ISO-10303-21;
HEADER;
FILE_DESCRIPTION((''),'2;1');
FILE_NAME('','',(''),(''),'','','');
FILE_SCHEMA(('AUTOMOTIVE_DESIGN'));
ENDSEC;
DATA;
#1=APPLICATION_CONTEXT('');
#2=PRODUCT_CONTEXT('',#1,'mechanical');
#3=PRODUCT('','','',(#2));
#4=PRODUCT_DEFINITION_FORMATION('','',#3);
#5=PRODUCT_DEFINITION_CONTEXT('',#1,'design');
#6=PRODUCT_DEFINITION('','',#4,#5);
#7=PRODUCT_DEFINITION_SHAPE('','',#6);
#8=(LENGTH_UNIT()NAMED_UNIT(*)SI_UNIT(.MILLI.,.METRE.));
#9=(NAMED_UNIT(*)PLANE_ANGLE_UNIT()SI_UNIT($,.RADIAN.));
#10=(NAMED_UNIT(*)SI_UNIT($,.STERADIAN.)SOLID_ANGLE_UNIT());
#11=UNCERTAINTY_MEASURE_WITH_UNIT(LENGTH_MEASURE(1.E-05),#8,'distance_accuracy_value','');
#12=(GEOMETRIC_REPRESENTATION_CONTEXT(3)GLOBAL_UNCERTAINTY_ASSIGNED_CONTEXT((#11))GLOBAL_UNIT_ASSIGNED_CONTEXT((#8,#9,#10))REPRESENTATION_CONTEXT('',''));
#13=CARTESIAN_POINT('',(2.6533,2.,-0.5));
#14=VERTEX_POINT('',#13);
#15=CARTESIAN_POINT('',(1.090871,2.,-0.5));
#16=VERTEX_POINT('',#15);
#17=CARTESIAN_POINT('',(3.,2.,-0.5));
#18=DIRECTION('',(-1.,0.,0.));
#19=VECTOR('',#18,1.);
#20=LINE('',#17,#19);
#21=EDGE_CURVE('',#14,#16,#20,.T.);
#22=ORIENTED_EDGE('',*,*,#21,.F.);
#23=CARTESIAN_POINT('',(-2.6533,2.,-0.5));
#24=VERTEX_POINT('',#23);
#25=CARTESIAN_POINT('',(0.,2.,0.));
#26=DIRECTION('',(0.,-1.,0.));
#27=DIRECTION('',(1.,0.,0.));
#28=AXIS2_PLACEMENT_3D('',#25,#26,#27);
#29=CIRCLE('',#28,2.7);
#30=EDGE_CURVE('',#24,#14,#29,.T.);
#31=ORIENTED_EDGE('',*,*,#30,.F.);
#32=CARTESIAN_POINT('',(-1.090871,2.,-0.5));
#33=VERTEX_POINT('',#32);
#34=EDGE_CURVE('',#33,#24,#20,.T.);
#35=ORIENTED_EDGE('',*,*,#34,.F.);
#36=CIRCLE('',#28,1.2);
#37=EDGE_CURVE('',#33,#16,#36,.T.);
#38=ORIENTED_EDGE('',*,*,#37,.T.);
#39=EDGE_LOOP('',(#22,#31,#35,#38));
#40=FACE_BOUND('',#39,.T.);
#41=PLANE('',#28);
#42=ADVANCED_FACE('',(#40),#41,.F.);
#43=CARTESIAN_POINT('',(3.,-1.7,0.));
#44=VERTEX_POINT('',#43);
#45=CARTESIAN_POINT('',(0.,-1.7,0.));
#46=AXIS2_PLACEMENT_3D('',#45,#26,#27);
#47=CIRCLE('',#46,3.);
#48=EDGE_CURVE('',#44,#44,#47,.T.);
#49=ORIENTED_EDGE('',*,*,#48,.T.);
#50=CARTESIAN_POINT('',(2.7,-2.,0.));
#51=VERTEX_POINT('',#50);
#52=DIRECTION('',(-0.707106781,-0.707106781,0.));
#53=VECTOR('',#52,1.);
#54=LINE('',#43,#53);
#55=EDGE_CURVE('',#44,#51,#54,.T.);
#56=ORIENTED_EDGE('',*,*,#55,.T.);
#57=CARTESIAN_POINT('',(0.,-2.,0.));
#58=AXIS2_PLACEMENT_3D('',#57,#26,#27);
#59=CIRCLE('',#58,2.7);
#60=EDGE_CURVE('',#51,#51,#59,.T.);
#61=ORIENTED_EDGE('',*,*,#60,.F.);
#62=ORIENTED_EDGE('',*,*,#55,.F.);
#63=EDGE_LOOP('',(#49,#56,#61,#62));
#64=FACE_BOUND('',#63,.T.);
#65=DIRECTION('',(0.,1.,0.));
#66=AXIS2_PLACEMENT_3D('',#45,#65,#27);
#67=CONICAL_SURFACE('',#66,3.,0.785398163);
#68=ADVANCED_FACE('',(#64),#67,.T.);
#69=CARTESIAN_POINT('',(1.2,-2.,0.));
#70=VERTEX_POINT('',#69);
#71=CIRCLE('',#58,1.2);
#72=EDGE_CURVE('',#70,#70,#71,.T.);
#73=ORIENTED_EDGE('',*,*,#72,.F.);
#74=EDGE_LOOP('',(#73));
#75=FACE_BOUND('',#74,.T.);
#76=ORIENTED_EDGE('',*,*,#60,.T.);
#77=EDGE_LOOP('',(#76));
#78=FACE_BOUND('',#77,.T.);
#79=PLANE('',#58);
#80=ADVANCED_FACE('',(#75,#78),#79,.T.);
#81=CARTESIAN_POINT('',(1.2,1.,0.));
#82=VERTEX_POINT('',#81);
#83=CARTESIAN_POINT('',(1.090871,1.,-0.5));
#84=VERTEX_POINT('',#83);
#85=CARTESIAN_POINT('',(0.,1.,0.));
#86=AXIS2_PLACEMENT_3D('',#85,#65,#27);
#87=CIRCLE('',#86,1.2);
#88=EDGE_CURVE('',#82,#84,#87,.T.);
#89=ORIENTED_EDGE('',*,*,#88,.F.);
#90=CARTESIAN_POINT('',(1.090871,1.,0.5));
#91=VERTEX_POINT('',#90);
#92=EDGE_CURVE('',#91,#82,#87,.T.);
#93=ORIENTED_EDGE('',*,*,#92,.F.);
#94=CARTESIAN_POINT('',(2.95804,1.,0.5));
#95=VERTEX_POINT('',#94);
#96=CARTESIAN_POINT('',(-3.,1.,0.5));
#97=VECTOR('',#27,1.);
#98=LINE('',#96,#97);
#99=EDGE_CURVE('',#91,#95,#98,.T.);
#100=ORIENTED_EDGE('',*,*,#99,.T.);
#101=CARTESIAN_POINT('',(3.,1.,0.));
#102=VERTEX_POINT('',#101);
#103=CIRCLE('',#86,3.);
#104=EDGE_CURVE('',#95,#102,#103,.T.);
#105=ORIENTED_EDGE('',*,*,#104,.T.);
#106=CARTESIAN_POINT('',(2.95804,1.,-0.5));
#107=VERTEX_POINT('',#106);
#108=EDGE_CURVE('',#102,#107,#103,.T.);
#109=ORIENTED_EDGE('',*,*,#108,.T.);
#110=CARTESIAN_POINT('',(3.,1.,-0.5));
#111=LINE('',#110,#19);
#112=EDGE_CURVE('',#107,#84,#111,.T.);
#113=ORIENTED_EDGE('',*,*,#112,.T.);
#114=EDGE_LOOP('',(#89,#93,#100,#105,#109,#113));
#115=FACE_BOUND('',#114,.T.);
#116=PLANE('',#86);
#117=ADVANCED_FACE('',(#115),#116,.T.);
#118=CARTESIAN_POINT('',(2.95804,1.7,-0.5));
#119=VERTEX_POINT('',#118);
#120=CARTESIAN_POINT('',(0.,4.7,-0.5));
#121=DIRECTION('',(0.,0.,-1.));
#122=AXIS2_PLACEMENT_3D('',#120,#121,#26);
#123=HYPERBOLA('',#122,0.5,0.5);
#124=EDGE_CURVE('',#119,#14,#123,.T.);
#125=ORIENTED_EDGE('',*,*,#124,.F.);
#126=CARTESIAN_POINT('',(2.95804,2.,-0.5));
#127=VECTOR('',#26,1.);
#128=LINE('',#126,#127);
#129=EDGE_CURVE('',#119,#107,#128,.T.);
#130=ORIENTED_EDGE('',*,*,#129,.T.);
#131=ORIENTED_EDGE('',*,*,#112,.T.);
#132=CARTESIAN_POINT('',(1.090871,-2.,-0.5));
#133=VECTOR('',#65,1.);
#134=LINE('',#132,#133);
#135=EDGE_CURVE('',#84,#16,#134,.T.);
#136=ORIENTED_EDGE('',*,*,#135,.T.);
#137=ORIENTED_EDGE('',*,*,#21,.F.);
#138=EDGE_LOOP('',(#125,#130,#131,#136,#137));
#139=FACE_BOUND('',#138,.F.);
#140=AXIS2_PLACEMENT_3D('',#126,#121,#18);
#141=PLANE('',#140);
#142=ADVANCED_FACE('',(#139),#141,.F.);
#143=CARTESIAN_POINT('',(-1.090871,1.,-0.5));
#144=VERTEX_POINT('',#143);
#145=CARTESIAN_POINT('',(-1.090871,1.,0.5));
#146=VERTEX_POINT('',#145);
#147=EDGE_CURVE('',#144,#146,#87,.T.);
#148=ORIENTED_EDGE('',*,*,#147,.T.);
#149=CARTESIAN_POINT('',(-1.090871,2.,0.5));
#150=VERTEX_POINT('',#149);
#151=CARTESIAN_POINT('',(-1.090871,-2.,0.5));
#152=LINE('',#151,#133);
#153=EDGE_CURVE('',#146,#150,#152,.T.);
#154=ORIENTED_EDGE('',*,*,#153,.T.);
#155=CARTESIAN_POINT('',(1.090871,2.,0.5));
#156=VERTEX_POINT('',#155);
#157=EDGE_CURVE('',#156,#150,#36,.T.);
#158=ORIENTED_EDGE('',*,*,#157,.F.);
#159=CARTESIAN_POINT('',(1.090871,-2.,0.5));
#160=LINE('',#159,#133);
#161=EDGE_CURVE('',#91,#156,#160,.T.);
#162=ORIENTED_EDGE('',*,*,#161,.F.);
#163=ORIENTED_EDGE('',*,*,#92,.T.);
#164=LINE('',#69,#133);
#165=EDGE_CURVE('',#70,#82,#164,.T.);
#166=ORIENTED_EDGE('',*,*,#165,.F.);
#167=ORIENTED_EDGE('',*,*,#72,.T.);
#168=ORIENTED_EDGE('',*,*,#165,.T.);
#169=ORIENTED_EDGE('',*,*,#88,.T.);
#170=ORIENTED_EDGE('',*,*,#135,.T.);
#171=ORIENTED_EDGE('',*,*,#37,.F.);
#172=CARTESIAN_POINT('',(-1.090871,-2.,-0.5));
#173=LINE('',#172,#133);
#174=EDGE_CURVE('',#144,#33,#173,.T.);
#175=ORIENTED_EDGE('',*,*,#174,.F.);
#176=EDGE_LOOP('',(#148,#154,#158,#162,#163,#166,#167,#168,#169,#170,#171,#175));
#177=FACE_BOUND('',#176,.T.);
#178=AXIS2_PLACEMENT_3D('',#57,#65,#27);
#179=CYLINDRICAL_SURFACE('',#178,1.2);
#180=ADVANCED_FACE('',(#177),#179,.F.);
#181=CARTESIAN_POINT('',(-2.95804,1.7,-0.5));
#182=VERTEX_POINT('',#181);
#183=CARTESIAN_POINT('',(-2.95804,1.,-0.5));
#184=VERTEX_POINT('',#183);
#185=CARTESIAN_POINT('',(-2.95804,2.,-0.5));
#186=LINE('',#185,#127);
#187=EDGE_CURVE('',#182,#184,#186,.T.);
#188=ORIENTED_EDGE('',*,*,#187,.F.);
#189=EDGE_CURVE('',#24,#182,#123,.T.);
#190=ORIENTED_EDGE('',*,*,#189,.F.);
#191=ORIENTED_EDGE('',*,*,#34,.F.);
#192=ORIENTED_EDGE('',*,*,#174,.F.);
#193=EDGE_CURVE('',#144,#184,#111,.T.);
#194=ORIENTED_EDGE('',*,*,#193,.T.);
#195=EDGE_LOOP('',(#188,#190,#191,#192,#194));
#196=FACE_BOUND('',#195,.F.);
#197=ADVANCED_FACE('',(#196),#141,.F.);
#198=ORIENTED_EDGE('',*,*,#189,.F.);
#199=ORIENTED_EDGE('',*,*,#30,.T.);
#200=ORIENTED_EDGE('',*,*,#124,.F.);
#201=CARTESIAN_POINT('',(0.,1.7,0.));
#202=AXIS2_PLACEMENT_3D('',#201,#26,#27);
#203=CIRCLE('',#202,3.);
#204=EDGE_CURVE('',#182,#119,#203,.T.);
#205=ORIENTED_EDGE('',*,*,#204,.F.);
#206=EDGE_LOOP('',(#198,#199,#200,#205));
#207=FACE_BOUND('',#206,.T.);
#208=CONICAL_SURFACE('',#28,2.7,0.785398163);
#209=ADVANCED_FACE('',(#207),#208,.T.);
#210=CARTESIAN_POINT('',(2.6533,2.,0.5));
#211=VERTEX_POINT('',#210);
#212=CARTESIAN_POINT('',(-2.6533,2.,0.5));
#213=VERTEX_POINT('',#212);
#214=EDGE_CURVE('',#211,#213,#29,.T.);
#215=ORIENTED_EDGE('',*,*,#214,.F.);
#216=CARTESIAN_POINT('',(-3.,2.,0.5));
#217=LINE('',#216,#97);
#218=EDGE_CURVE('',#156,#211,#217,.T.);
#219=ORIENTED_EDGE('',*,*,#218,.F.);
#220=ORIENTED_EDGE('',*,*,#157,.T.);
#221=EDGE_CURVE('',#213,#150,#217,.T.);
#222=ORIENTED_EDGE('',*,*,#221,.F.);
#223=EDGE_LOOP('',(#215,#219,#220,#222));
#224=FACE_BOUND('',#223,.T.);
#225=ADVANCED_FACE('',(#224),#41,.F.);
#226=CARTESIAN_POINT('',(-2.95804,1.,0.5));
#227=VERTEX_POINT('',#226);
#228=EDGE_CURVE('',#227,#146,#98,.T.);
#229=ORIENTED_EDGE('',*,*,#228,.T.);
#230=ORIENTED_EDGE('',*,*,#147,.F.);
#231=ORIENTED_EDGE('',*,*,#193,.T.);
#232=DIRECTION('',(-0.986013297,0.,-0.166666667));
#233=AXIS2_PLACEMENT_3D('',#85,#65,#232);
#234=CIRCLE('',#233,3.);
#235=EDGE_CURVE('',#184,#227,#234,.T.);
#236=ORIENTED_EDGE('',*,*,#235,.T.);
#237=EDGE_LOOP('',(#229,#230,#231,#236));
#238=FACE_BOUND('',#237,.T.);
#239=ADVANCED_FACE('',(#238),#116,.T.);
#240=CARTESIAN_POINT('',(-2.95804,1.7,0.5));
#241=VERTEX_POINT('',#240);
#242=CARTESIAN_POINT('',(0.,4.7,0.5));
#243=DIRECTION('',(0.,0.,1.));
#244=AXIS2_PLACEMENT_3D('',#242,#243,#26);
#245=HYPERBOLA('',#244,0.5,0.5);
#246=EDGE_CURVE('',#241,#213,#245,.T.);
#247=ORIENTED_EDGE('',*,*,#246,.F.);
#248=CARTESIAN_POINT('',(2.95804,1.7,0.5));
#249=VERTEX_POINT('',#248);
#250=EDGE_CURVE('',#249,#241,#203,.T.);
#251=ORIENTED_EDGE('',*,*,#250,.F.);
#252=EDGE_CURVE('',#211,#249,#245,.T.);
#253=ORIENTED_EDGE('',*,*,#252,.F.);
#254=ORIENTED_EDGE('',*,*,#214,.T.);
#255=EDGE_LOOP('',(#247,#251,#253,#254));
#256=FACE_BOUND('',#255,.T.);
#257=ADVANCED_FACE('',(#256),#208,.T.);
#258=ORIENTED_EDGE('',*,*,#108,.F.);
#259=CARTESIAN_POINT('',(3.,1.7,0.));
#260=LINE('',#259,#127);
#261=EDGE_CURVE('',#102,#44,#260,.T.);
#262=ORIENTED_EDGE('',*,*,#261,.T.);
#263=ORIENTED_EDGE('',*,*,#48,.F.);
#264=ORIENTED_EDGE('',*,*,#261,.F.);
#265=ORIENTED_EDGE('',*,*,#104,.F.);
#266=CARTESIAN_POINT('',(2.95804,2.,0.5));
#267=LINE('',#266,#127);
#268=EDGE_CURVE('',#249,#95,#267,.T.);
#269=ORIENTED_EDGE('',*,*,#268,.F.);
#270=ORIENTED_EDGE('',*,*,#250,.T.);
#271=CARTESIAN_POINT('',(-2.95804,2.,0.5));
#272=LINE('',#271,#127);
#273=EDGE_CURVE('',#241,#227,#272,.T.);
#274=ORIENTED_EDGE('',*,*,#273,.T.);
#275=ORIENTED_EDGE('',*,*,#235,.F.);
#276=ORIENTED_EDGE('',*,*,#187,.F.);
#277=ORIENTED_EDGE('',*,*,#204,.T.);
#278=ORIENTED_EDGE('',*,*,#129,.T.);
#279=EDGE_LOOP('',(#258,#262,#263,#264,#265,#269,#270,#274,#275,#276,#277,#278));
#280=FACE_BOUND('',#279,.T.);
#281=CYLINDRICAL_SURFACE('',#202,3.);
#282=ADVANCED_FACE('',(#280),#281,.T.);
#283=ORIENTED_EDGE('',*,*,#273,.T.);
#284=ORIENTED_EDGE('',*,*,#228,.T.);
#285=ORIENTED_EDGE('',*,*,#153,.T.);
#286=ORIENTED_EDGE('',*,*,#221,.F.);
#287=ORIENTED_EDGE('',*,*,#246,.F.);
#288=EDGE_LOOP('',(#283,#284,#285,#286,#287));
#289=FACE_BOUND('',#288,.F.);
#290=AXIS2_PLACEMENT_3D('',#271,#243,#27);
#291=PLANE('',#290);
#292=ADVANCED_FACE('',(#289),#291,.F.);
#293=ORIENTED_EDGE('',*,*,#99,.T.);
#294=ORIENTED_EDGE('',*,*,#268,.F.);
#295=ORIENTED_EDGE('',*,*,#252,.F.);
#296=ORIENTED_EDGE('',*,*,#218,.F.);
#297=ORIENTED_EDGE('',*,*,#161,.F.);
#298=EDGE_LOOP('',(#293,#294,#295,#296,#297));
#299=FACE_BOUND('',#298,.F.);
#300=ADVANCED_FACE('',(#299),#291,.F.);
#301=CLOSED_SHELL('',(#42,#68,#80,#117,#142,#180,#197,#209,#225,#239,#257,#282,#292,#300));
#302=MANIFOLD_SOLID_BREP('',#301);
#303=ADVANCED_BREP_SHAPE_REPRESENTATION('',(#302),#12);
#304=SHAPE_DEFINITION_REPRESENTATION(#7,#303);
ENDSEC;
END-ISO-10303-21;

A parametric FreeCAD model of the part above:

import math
import FreeCAD as App
import Part
import Sketcher

V = App.Vector
Q = App.Units.Quantity

doc = App.newDocument("Part")
body = doc.addObject("PartDesign::Body", "Body")

# Sketch on XY plane
sketch1 = body.newObject("Sketcher::SketchObject", "Sketch")
sketch1.AttachmentSupport = (doc.getObject("XY_Plane"), [""])
sketch1.MapMode = "FlatFace"
sketch1.addGeometry([
    Part.LineSegment(V(1.2, 2, 0), V(1.2, -2, 0)),  # 0
    Part.LineSegment(V(1.2, -2, 0), V(2.7, -2, 0)),  # 1
    Part.LineSegment(V(2.7, -2, 0), V(3, -1.7, 0)),  # 2
    Part.LineSegment(V(3, -1.7, 0), V(3, 1.7, 0)),  # 3
    Part.LineSegment(V(3, 1.7, 0), V(2.7, 2, 0)),  # 4
    Part.LineSegment(V(2.7, 2, 0), V(1.2, 2, 0)),  # 5
], False)
sketch1.addConstraint([
    Sketcher.Constraint("Coincident", 0, 2, 1, 1),
    Sketcher.Constraint("Coincident", 1, 2, 2, 1),
    Sketcher.Constraint("Coincident", 2, 2, 3, 1),
    Sketcher.Constraint("Coincident", 3, 2, 4, 1),
    Sketcher.Constraint("Coincident", 4, 2, 5, 1),
    Sketcher.Constraint("Coincident", 5, 2, 0, 1),
    Sketcher.Constraint("Vertical", 0),
    Sketcher.Constraint("Horizontal", 1),
    Sketcher.Constraint("Vertical", 3),
    Sketcher.Constraint("Horizontal", 5),
    Sketcher.Constraint("Symmetric", 1, 2, 4, 2, -1),
    Sketcher.Constraint("Perpendicular", 2, 4),
    Sketcher.Constraint("Equal", 2, 4),
    Sketcher.Constraint("DistanceY", 0, 2, 0, 1, Q("4 mm")),
    Sketcher.Constraint("DistanceX", 1, 2, 2, 2, Q("0.3 mm")),
    Sketcher.Constraint("DistanceX", 1, 1, 1, 2, Q("1.5 mm")),
    Sketcher.Constraint("DistanceX", -1, 1, 2, 2, Q("3 mm")),
])
revolution = body.newObject("PartDesign::Revolution", "Revolution")
revolution.Profile = sketch1
revolution.ReferenceAxis = (sketch1, ["V_Axis"])
revolution.Angle = 360

# Sketch on XZ plane
sketch2 = body.newObject("Sketcher::SketchObject", "Sketch001")
sketch2.AttachmentSupport = (doc.getObject("XZ_Plane"), [""])
sketch2.MapMode = "FlatFace"
sketch2.AttachmentOffset = App.Placement(V(0, 0, -2), App.Rotation())
sketch2.addGeometry([
    Part.ArcOfCircle(Part.Circle(V(0, 0, 0), V(0, 0, 1), 3), math.radians(170.41), math.radians(189.59)),
    Part.LineSegment(V(-3, 0.5, 0), V(3, 0.5, 0)),
    Part.ArcOfCircle(Part.Circle(V(0, 0, 0), V(0, 0, 1), 3), math.radians(-9.59), math.radians(9.59)),
    Part.LineSegment(V(3, -0.5, 0), V(-3, -0.5, 0)),
], False)
sketch2.addConstraint([
    Sketcher.Constraint("Coincident", 0, 1, 1, 1),
    Sketcher.Constraint("Coincident", 1, 2, 2, 2),
    Sketcher.Constraint("Coincident", 2, 1, 3, 1),
    Sketcher.Constraint("Coincident", 3, 2, 0, 2),
    Sketcher.Constraint("Horizontal", 1),
    Sketcher.Constraint("Horizontal", 3),
    Sketcher.Constraint("Coincident", 0, 3, -1, 1),
    Sketcher.Constraint("Coincident", 2, 3, -1, 1),
    Sketcher.Constraint("Equal", 0, 2),
    Sketcher.Constraint("Vertical", 1, 2, 2, 1),
    Sketcher.Constraint("Radius", 0, Q("3 mm")),
    Sketcher.Constraint("DistanceY", 2, 1, 1, 2, Q("1 mm")),
])
pocket1 = body.newObject("PartDesign::Pocket", "Pocket")
pocket1.Profile = sketch2
pocket1.Length = 1
pocket1.Reversed = True

doc.recompute()
